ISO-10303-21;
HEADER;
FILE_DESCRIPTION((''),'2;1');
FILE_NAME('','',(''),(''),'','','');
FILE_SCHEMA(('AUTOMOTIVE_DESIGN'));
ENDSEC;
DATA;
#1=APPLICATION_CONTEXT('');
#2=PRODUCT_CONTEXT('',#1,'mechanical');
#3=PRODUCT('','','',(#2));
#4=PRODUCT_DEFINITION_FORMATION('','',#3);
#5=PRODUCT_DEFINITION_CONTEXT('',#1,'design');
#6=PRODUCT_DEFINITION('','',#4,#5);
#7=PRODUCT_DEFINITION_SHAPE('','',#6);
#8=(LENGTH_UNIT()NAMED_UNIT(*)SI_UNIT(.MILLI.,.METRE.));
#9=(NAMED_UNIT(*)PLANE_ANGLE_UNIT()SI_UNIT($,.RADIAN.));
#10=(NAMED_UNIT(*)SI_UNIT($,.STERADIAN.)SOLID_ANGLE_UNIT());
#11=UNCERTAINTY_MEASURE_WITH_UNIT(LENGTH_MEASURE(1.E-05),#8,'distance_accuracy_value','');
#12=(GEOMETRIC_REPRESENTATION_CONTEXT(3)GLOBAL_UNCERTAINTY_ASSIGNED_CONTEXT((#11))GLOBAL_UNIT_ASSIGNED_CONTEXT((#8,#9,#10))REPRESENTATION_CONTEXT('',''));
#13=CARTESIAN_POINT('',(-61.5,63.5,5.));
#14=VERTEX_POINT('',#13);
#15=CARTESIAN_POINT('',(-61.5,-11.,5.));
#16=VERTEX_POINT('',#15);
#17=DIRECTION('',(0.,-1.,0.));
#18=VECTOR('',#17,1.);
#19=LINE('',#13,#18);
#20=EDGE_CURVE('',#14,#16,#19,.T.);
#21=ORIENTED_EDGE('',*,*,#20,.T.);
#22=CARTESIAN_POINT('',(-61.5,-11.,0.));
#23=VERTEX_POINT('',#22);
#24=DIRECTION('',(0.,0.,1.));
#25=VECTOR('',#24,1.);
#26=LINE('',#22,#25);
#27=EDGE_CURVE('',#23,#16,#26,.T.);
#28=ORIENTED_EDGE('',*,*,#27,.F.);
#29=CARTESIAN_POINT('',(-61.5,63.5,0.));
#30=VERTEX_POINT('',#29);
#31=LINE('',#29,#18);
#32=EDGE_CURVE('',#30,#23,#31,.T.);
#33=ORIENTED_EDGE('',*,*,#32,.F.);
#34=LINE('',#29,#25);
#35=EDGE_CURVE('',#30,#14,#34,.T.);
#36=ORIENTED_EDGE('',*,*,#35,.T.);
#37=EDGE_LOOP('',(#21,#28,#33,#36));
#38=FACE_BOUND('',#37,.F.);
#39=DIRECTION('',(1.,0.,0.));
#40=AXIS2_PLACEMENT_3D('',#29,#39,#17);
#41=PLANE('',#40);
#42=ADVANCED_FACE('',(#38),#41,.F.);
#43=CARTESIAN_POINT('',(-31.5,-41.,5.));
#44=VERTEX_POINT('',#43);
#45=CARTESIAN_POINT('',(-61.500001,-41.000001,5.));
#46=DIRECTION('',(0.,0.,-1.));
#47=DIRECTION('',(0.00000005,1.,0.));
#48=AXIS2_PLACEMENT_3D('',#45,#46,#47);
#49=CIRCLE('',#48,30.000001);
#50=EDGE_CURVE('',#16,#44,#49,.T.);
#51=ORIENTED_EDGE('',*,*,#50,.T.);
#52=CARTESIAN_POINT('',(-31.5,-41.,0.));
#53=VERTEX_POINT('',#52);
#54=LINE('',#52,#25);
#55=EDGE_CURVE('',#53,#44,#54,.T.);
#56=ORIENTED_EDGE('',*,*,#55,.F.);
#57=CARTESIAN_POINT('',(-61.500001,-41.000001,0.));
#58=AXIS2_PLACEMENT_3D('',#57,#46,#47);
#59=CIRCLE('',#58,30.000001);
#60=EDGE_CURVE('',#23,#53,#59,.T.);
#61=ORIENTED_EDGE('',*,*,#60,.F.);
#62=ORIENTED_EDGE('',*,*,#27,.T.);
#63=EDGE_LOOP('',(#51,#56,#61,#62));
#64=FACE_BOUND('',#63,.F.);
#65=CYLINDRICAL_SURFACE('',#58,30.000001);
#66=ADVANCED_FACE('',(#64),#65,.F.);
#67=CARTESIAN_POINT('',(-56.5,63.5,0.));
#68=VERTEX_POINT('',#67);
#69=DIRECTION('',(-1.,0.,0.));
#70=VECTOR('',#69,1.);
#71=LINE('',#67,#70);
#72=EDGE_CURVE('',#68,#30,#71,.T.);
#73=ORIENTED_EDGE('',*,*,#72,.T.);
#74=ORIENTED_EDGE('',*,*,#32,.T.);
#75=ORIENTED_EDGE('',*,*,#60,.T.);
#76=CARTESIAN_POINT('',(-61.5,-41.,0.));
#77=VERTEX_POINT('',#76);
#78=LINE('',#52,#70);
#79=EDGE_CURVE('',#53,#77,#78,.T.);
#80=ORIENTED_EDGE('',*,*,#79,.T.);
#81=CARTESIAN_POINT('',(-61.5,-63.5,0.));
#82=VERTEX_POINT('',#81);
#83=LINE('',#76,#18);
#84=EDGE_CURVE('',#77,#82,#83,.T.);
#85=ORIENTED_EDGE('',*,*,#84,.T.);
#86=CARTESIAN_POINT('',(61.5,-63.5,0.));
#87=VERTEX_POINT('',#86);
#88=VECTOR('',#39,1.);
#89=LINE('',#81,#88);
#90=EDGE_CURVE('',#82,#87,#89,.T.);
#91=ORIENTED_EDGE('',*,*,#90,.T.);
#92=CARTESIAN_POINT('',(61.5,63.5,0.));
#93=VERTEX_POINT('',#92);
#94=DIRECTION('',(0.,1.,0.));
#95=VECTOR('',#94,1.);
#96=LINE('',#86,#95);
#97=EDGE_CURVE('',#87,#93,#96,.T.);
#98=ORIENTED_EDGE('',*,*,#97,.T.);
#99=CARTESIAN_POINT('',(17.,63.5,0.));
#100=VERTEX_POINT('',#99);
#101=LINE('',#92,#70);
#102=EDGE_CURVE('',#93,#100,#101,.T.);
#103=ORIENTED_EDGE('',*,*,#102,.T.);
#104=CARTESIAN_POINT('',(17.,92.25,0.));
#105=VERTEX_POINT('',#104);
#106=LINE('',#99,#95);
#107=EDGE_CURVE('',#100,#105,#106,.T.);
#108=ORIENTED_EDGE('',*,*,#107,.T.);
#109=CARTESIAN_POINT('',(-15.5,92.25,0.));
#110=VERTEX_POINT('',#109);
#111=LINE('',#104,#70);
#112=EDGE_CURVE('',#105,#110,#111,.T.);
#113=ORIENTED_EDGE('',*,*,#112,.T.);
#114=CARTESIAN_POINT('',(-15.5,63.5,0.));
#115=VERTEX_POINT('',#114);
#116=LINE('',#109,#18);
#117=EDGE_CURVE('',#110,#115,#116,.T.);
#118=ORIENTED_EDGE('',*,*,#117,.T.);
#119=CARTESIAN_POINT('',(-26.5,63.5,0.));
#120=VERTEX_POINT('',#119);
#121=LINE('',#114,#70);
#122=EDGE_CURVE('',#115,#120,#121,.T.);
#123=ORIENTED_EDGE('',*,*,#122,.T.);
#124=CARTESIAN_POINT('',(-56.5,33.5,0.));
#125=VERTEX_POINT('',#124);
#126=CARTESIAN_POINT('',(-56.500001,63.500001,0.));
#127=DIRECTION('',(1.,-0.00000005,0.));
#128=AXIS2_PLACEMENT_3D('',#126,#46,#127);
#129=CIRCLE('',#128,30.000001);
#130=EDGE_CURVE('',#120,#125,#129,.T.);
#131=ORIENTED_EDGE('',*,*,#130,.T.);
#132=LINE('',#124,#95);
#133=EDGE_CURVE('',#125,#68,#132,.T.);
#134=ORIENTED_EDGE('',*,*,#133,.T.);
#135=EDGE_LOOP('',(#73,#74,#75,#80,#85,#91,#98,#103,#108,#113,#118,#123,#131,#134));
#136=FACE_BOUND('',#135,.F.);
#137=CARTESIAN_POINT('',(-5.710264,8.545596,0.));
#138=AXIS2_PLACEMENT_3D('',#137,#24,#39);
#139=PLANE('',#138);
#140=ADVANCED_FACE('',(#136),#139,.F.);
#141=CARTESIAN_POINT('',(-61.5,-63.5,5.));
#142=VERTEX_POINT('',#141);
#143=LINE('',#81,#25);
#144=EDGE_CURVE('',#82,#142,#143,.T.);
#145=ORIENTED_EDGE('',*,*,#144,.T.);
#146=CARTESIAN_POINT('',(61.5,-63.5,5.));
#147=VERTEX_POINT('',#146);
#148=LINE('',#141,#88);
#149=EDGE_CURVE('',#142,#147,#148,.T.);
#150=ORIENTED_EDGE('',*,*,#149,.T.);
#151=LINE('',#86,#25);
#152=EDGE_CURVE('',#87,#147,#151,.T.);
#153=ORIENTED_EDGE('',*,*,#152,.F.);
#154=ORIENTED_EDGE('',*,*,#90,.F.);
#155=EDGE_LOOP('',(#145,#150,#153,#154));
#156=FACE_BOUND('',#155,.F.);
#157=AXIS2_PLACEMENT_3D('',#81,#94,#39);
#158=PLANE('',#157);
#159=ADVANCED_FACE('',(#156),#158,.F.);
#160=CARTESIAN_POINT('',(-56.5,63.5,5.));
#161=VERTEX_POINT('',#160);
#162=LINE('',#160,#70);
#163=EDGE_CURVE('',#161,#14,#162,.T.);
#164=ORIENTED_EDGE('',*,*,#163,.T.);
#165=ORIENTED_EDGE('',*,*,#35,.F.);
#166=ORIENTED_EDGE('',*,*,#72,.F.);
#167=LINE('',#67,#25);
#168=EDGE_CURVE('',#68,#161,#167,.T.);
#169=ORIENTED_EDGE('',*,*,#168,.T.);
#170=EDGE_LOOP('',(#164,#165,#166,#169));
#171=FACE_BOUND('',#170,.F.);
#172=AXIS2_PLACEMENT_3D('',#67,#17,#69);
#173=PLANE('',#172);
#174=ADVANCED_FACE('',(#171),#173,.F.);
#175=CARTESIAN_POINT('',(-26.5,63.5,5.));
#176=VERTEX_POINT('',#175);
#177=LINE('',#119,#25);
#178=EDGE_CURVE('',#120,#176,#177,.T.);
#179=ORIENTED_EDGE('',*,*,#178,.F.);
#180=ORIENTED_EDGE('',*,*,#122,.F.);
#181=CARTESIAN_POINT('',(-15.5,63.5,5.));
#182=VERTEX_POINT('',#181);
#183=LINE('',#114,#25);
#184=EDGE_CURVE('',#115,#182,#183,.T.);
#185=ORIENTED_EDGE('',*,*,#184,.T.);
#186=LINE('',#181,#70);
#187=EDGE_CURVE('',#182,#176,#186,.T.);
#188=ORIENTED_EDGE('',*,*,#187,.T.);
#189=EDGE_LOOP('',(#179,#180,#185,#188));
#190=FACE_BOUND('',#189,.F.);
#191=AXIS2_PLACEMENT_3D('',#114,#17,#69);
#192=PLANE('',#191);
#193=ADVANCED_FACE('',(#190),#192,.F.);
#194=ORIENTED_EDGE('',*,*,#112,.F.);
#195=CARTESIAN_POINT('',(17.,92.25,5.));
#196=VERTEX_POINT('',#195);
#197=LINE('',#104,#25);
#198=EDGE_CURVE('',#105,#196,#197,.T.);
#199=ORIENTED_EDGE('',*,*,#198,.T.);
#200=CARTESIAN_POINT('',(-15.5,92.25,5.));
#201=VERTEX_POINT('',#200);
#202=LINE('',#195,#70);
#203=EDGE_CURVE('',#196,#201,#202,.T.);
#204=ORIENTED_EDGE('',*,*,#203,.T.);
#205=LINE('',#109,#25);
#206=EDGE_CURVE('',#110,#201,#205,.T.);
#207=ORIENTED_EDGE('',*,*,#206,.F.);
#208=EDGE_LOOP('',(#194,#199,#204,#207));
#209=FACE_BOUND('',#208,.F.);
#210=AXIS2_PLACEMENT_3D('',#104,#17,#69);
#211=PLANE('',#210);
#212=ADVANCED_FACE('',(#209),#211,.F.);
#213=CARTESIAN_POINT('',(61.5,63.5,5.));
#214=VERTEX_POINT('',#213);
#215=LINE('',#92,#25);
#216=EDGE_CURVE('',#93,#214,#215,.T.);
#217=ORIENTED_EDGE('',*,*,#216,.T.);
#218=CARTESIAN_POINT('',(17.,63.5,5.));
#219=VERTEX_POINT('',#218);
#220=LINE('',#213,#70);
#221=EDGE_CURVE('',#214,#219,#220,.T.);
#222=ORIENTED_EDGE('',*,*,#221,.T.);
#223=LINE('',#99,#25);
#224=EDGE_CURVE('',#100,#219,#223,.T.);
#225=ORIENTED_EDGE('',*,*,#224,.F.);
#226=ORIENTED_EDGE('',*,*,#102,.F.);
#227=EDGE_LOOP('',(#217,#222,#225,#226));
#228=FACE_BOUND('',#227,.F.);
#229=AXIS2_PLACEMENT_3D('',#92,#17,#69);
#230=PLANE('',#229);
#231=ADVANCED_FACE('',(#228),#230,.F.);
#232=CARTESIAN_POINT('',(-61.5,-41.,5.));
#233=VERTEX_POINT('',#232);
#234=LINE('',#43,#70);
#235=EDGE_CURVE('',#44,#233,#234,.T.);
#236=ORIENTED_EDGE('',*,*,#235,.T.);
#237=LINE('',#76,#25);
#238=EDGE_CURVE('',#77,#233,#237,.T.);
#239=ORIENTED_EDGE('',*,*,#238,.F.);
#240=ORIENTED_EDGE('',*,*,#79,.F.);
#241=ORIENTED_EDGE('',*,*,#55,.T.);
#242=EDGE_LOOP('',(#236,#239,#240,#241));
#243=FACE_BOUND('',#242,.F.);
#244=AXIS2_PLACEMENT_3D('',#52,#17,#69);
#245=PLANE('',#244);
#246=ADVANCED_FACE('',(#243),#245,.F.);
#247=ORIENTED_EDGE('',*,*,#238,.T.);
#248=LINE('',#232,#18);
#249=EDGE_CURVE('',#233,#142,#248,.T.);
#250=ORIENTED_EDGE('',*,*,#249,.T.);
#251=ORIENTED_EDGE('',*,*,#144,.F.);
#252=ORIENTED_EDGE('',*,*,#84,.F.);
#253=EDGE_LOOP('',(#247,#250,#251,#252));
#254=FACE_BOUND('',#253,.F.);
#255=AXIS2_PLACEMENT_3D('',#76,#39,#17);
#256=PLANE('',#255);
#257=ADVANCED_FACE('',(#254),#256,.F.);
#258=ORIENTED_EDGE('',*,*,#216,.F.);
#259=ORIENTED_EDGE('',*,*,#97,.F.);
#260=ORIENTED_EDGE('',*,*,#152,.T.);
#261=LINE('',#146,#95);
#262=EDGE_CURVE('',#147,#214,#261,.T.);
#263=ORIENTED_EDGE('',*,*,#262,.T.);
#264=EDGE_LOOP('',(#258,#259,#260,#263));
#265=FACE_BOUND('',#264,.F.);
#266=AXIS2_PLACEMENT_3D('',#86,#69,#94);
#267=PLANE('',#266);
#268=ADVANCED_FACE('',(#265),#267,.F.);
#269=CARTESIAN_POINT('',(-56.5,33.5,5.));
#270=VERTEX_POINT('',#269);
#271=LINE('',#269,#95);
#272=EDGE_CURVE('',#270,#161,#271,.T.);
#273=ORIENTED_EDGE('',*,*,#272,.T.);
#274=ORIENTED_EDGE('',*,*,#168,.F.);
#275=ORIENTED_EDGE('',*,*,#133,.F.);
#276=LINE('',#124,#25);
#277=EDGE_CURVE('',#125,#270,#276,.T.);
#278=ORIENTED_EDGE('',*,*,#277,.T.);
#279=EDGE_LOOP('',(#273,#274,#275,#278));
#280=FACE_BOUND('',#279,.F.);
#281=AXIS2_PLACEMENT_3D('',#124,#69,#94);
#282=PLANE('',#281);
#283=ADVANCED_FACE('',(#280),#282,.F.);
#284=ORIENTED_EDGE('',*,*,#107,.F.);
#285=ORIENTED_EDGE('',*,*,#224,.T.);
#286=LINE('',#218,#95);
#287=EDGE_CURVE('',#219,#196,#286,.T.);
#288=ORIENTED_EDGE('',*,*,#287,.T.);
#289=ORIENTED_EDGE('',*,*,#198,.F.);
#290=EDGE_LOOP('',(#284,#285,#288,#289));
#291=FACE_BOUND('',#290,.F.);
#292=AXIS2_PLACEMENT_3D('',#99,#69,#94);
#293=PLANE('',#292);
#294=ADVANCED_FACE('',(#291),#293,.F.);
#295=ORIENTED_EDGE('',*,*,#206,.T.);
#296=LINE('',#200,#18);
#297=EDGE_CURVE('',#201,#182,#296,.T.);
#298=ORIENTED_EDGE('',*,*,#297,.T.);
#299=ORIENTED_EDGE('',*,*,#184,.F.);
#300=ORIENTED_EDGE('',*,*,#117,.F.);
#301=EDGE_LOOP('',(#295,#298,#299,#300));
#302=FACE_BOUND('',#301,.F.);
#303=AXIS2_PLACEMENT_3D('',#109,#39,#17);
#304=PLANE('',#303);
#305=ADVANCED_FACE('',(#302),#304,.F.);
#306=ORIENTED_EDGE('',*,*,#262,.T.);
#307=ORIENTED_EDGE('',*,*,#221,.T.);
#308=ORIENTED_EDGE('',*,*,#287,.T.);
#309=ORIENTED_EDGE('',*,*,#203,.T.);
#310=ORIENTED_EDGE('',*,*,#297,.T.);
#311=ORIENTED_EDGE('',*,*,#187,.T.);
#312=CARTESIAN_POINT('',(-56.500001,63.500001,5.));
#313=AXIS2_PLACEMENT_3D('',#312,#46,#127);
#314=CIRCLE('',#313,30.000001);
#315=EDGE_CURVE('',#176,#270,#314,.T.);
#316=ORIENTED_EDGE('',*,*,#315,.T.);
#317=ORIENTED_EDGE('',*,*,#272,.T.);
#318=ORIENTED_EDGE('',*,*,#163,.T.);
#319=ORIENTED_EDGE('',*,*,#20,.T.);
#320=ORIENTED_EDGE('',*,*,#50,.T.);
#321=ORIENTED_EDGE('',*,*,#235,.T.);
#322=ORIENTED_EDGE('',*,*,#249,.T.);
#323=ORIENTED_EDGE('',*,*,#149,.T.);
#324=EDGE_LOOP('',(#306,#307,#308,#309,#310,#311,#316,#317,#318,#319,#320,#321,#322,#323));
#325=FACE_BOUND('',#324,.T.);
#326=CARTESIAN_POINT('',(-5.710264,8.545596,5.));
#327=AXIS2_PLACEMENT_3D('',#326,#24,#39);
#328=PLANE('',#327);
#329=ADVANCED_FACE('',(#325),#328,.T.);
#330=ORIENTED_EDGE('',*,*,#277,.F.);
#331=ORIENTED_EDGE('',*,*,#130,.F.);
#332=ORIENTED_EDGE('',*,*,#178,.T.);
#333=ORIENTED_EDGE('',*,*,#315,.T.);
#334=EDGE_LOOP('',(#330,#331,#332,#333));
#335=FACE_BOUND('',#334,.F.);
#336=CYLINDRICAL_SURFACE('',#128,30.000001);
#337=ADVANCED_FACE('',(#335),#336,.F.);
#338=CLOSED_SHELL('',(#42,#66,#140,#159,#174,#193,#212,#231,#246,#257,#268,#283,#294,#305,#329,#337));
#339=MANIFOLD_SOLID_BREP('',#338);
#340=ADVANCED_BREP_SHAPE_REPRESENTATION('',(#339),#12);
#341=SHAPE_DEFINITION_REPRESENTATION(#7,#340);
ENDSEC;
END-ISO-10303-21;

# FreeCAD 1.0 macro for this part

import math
import FreeCAD as App
import Part
import Sketcher
Q = App.Units.Quantity

doc = App.newDocument("Part")
body = doc.addObject("PartDesign::Body", "Body")

sketch1 = doc.addObject("Sketcher::SketchObject", "Sketch")
body.addObject(sketch1)
sketch1.AttachmentSupport = (doc.XY_Plane, [""])
sketch1.MapMode = "FlatFace"
sketch1.addGeometry([
    Part.LineSegment(App.Vector(62, -64, 0), App.Vector(62, 64, 0)),
    Part.LineSegment(App.Vector(62, 64, 0), App.Vector(17, 64, 0)),
    Part.LineSegment(App.Vector(17, 64, 0), App.Vector(17, 92, 0)),
    Part.LineSegment(App.Vector(17, 92, 0), App.Vector(-16, 92, 0)),
    Part.LineSegment(App.Vector(-16, 92, 0), App.Vector(-16, 64, 0)),
    Part.LineSegment(App.Vector(-16, 64, 0), App.Vector(-26, 64, 0)),
    Part.ArcOfCircle(Part.Circle(App.Vector(-57, 64, 0), App.Vector(0, 0, 1), 30), math.radians(-90), math.radians(0)),
    Part.LineSegment(App.Vector(-56, 34, 0), App.Vector(-56, 64, 0)),
    Part.LineSegment(App.Vector(-56, 64, 0), App.Vector(-62, 64, 0)),
    Part.LineSegment(App.Vector(-62, 64, 0), App.Vector(-62, -11, 0)),
    Part.ArcOfCircle(Part.Circle(App.Vector(-62, -41, 0), App.Vector(0, 0, 1), 30), math.radians(0), math.radians(90)),
    Part.LineSegment(App.Vector(-32, -41, 0), App.Vector(-62, -41, 0)),
    Part.LineSegment(App.Vector(-62, -41, 0), App.Vector(-62, -64, 0)),
    Part.LineSegment(App.Vector(-62, -64, 0), App.Vector(62, -64, 0)),
], False)
sketch1.addConstraint([
    Sketcher.Constraint("Coincident", 0, 2, 1, 1),
    Sketcher.Constraint("Coincident", 1, 2, 2, 1),
    Sketcher.Constraint("Coincident", 2, 2, 3, 1),
    Sketcher.Constraint("Coincident", 3, 2, 4, 1),
    Sketcher.Constraint("Coincident", 4, 2, 5, 1),
    Sketcher.Constraint("Coincident", 5, 2, 6, 2),
    Sketcher.Constraint("Coincident", 6, 1, 7, 1),
    Sketcher.Constraint("Coincident", 7, 2, 8, 1),
    Sketcher.Constraint("Coincident", 8, 2, 9, 1),
    Sketcher.Constraint("Coincident", 9, 2, 10, 2),
    Sketcher.Constraint("Coincident", 10, 1, 11, 1),
    Sketcher.Constraint("Coincident", 11, 2, 12, 1),
    Sketcher.Constraint("Coincident", 12, 2, 13, 1),
    Sketcher.Constraint("Coincident", 13, 2, 0, 1),
    Sketcher.Constraint("Vertical", 0),
    Sketcher.Constraint("Horizontal", 1),
    Sketcher.Constraint("Vertical", 2),
    Sketcher.Constraint("Horizontal", 3),
    Sketcher.Constraint("Vertical", 4),
    Sketcher.Constraint("Horizontal", 5),
    Sketcher.Constraint("Vertical", 7),
    Sketcher.Constraint("Horizontal", 8),
    Sketcher.Constraint("Vertical", 9),
    Sketcher.Constraint("Horizontal", 11),
    Sketcher.Constraint("Vertical", 12),
    Sketcher.Constraint("Horizontal", 13),
    Sketcher.Constraint("Coincident", 7, 2, 6, 3),
    Sketcher.Constraint("Coincident", 11, 2, 10, 3),
    Sketcher.Constraint("Equal", 6, 10),
    Sketcher.Constraint("Symmetric", 0, 2, 12, 2, -1, 1),
    Sketcher.Constraint("Symmetric", 8, 2, 13, 2, -1, 1),
    Sketcher.Constraint("Horizontal", 1, 2, 4, 2),
    Sketcher.Constraint("Radius", 6, Q("30.000001 mm")),
    Sketcher.Constraint("DistanceX", 5, 2, 5, 1, Q("11 mm")),
    Sketcher.Constraint("DistanceX", 8, 2, 8, 1, Q("5 mm")),
    Sketcher.Constraint("DistanceX", 13, 1, 13, 2, Q("123 mm")),
    Sketcher.Constraint("DistanceY", 0, 1, 0, 2, Q("127 mm")),
    Sketcher.Constraint("DistanceX", 1, 2, 1, 1, Q("44.5 mm")),
    Sketcher.Constraint("DistanceY", 9, 2, 9, 1, Q("74.5 mm")),
    Sketcher.Constraint("DistanceY", 2, 1, 2, 2, Q("28.75 mm")),
])
pad1 = doc.addObject("PartDesign::Pad", "Pad")
body.addObject(pad1)
pad1.Profile = sketch1
pad1.Length = 5

doc.recompute()
